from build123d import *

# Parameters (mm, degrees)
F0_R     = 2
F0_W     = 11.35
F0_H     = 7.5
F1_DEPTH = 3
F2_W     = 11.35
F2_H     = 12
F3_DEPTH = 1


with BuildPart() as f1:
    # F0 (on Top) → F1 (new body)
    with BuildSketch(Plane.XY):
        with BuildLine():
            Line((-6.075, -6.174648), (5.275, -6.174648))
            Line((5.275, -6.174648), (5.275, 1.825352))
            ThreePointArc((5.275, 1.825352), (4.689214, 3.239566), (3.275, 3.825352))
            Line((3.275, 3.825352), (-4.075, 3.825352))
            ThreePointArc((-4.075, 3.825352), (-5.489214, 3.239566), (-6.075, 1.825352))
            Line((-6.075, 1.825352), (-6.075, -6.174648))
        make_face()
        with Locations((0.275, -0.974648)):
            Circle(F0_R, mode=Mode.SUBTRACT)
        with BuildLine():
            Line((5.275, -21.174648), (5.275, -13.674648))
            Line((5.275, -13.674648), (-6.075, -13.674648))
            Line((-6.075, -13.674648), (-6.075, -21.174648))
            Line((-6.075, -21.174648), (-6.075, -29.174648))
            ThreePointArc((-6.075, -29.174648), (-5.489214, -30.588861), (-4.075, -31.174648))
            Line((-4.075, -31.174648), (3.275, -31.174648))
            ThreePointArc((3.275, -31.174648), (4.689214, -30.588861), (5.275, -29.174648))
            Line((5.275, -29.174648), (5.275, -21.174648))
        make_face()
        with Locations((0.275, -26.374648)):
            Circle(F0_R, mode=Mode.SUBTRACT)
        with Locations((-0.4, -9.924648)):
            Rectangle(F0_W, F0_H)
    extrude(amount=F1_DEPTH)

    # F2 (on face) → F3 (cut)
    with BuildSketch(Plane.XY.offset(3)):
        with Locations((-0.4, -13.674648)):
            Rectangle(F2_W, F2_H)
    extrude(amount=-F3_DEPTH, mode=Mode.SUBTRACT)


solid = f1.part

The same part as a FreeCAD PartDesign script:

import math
import FreeCAD as App
import Part
import Sketcher

V = App.Vector
Q = App.Units.Quantity

doc = App.newDocument("Part")
params = doc.addObject("Spreadsheet::Sheet", "Params")
for row, (alias, value) in enumerate([
    ("sketch1_diameter", "4 mm"),
    ("sketch1_height", "31 mm"),
    ("sketch1_width", "7.35 mm"),
    ("pad1_length", "3 mm"),
    ("sketch2_height", "12 mm"),
    ("sketch2_width", "11.35 mm"),
    ("pocket1_length", "1 mm"),
], start=1):
    params.set(f"A{row}", alias)
    params.set(f"B{row}", "=" + value)
    params.setAlias(f"B{row}", alias)

body = doc.addObject("PartDesign::Body", "Body")

# Sketch on XY plane
sketch1 = doc.addObject("Sketcher::SketchObject", "Sketch")
body.addObject(sketch1)
sketch1.AttachmentSupport = (doc.XY_Plane, [""])
sketch1.MapMode = "FlatFace"
sketch1.addGeometry(Part.ArcOfCircle(Part.Circle(V(-4.075001, 1.825353, 0), V(0, 0, 1), 1.999999), math.radians(89.999957), math.radians(180.000043)), False)
sketch1.addGeometry(Part.LineSegment(V(-6.075, 1.825352, 0), V(-6.075, -29.174648, 0)), False)
sketch1.addGeometry(Part.ArcOfCircle(Part.Circle(V(-4.075, -29.174648, 0), V(0, 0, 1), 2), math.radians(-179.999994), math.radians(-90.000006)), False)
sketch1.addGeometry(Part.LineSegment(V(-4.075, -31.174648, 0), V(3.275, -31.174648, 0)), False)
sketch1.addGeometry(Part.ArcOfCircle(Part.Circle(V(3.275, -29.174648, 0), V(0, 0, 1), 2), math.radians(-89.999994), math.radians(-0.000006)), False)
sketch1.addGeometry(Part.LineSegment(V(5.275, -29.174648, 0), V(5.275, 1.825352, 0)), False)
sketch1.addGeometry(Part.ArcOfCircle(Part.Circle(V(3.275001, 1.825353, 0), V(0, 0, 1), 1.999999), math.radians(-0.000043), math.radians(90.000043)), False)
sketch1.addGeometry(Part.LineSegment(V(3.275, 3.825352, 0), V(-4.075, 3.825352, 0)), False)
sketch1.addGeometry(Part.Circle(V(0.275, -26.374648, 0), V(0, 0, 1), 2), False)
sketch1.addGeometry(Part.Circle(V(0.275, -0.974648, 0), V(0, 0, 1), 2), False)
sketch1.addConstraint(Sketcher.Constraint("Tangent", 0, 2, 1, 1))
sketch1.addConstraint(Sketcher.Constraint("Tangent", 1, 2, 2, 1))
sketch1.addConstraint(Sketcher.Constraint("Tangent", 2, 2, 3, 1))
sketch1.addConstraint(Sketcher.Constraint("Tangent", 3, 2, 4, 1))
sketch1.addConstraint(Sketcher.Constraint("Tangent", 4, 2, 5, 1))
sketch1.addConstraint(Sketcher.Constraint("Tangent", 5, 2, 6, 1))
sketch1.addConstraint(Sketcher.Constraint("Tangent", 6, 2, 7, 1))
sketch1.addConstraint(Sketcher.Constraint("Tangent", 7, 2, 0, 1))
sketch1.addConstraint(Sketcher.Constraint("Vertical", 1))
sketch1.addConstraint(Sketcher.Constraint("Horizontal", 3))
sketch1.addConstraint(Sketcher.Constraint("Vertical", 5))
sketch1.addConstraint(Sketcher.Constraint("Horizontal", 7))
sketch1.addConstraint(Sketcher.Constraint("Equal", 0, 2))
sketch1.addConstraint(Sketcher.Constraint("Equal", 2, 4))
sketch1.addConstraint(Sketcher.Constraint("Equal", 4, 6))
sketch1.addConstraint(Sketcher.Constraint("Equal", 6, 8))
sketch1.addConstraint(Sketcher.Constraint("Equal", 8, 9))
sketch1.addConstraint(Sketcher.Constraint("Vertical", 8, 3, 9, 3))
sketch1.addConstraint(Sketcher.Constraint("Diameter", 8, Q("4 mm")))
sketch1.addConstraint(Sketcher.Constraint("DistanceY", 1, 2, 1, 1, Q("31 mm")))
sketch1.addConstraint(Sketcher.Constraint("DistanceX", 8, 3, 4, 3, Q("3 mm")))
sketch1.addConstraint(Sketcher.Constraint("DistanceX", 3, 1, 3, 2, Q("7.35 mm")))
sketch1.addConstraint(Sketcher.Constraint("DistanceY", 4, 3, 8, 3, Q("2.8 mm")))
sketch1.addConstraint(Sketcher.Constraint("DistanceY", 9, 3, 6, 3, Q("2.800001 mm")))
sketch1.addConstraint(Sketcher.Constraint("DistanceX", 0, 3, -1, 1, Q("4.075001 mm")))
sketch1.addConstraint(Sketcher.Constraint("DistanceY", 8, 3, -1, 1, Q("26.374648 mm")))
sketch1.setExpression("Constraints[18]", "Params.sketch1_diameter")
sketch1.setExpression("Constraints[19]", "Params.sketch1_height")
sketch1.setExpression("Constraints[21]", "Params.sketch1_width")
pad1 = doc.addObject("PartDesign::Pad", "Pad")
body.addObject(pad1)
pad1.Profile = sketch1
pad1.setExpression("Length", "Params.pad1_length")

# Sketch on XY plane
sketch2 = doc.addObject("Sketcher::SketchObject", "Sketch001")
body.addObject(sketch2)
sketch2.AttachmentSupport = (doc.XY_Plane, [""])
sketch2.MapMode = "FlatFace"
sketch2.AttachmentOffset = App.Placement(V(0, 0, 3), App.Rotation())
sketch2.addGeometry(Part.LineSegment(V(-6.075, -7.674648, 0), V(-6.075, -19.674648, 0)), False)
sketch2.addGeometry(Part.LineSegment(V(-6.075, -19.674648, 0), V(5.275, -19.674648, 0)), False)
sketch2.addGeometry(Part.LineSegment(V(5.275, -19.674648, 0), V(5.275, -7.674648, 0)), False)
sketch2.addGeometry(Part.LineSegment(V(5.275, -7.674648, 0), V(-6.075, -7.674648, 0)), False)
sketch2.addConstraint(Sketcher.Constraint("Coincident", 0, 2, 1, 1))
sketch2.addConstraint(Sketcher.Constraint("Coincident", 1, 2, 2, 1))
sketch2.addConstraint(Sketcher.Constraint("Coincident", 2, 2, 3, 1))
sketch2.addConstraint(Sketcher.Constraint("Coincident", 3, 2, 0, 1))
sketch2.addConstraint(Sketcher.Constraint("Vertical", 0))
sketch2.addConstraint(Sketcher.Constraint("Horizontal", 1))
sketch2.addConstraint(Sketcher.Constraint("Vertical", 2))
sketch2.addConstraint(Sketcher.Constraint("Horizontal", 3))
sketch2.addConstraint(Sketcher.Constraint("DistanceY", 0, 2, 0, 1, Q("12 mm")))
sketch2.addConstraint(Sketcher.Constraint("DistanceX", 1, 1, 1, 2, Q("11.35 mm")))
sketch2.addConstraint(Sketcher.Constraint("DistanceX", 0, 2, -1, 1, Q("6.075 mm")))
sketch2.addConstraint(Sketcher.Constraint("DistanceY", 0, 2, -1, 1, Q("19.674648 mm")))
sketch2.setExpression("Constraints[8]", "Params.sketch2_height")
sketch2.setExpression("Constraints[9]", "Params.sketch2_width")
pocket1 = doc.addObject("PartDesign::Pocket", "Pocket")
body.addObject(pocket1)
pocket1.Profile = sketch2
pocket1.setExpression("Length", "Params.pocket1_length")

doc.recompute()
